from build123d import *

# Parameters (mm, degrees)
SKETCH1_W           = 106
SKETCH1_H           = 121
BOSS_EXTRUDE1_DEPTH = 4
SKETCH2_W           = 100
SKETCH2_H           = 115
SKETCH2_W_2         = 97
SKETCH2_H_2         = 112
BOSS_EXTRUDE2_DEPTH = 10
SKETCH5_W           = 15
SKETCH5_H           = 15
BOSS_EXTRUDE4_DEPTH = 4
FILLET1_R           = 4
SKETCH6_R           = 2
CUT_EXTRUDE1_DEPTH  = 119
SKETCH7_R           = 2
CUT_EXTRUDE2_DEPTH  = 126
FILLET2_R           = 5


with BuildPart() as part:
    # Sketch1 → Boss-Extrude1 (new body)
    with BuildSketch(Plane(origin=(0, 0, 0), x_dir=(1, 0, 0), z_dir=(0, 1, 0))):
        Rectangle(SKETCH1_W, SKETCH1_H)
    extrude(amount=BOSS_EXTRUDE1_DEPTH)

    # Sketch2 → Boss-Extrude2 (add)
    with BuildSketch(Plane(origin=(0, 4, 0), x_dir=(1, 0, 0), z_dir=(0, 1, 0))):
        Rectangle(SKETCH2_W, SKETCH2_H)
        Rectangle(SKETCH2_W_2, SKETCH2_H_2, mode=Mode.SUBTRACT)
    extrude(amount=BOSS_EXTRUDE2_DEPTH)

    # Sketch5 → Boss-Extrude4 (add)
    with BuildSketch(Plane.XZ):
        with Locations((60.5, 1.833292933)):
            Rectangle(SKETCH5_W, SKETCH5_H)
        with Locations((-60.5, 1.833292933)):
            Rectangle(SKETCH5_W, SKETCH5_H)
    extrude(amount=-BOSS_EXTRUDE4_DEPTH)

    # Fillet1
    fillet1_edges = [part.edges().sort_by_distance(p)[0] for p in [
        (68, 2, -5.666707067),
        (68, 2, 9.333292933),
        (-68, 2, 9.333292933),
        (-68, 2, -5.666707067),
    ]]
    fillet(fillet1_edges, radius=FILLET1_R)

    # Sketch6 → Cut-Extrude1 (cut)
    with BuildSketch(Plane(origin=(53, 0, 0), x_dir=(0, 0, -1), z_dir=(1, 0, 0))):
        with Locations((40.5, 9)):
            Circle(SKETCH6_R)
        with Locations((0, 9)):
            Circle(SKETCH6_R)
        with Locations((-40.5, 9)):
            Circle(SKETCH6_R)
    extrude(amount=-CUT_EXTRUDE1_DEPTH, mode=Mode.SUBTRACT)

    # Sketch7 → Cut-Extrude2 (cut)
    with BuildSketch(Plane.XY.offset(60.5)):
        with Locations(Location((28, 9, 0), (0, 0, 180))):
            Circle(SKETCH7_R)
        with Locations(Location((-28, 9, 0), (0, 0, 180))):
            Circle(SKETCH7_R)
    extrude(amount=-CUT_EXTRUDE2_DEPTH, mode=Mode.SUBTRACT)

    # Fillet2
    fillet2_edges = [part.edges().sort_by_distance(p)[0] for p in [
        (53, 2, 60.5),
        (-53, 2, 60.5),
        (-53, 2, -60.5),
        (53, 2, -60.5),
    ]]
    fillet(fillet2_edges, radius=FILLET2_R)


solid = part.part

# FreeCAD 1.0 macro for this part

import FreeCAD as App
import Part
import Sketcher
Q = App.Units.Quantity


def edges_at(feature, points):
    """Names of the edges that pass closest to the given points."""
    edges = feature.Shape.Edges
    near = lambda p: min(range(len(edges)), key=lambda i: edges[i].distToShape(Part.Vertex(*p))[0])
    return sorted({f"Edge{near(p) + 1}" for p in points})


def add_polygon(sketch, points):
    """Adds a closed chain of lines whose ends are joined by coincident constraints."""
    first, n = sketch.GeometryCount, len(points)
    for a, b in zip(points, points[1:] + points[:1]):
        sketch.addGeometry(Part.LineSegment(App.Vector(*a, 0), App.Vector(*b, 0)), False)
    for i in range(n):
        sketch.addConstraint(Sketcher.Constraint("Coincident", first + i, 2, first + (i + 1) % n, 1))

doc = App.newDocument("Part")
body = doc.addObject("PartDesign::Body", "Body")

# Sketch on XZ plane
sketch1 = doc.addObject("Sketcher::SketchObject", "Sketch")
body.addObject(sketch1)
sketch1.AttachmentSupport = (doc.XZ_Plane, [""])
sketch1.MapMode = "FlatFace"
add_polygon(sketch1, [(-53, -60), (-53, 60), (53, 60), (53, -60)])  # lines 0-3
sketch1.addConstraint([
    Sketcher.Constraint("Vertical", 0),
    Sketcher.Constraint("Horizontal", 1),
    Sketcher.Constraint("Vertical", 2),
    Sketcher.Constraint("Horizontal", 3),
    Sketcher.Constraint("Symmetric", 0, 2, 2, 2, -1, 1),
    Sketcher.Constraint("DistanceX", 1, 1, 1, 2, Q("106 mm")),
    Sketcher.Constraint("DistanceY", 0, 1, 0, 2, Q("121 mm")),
])
pad1 = doc.addObject("PartDesign::Pad", "Pad")
body.addObject(pad1)
pad1.Profile = sketch1
pad1.Length = 4
pad1.Reversed = True

# Sketch on XZ plane
sketch2 = doc.addObject("Sketcher::SketchObject", "Sketch001")
body.addObject(sketch2)
sketch2.AttachmentSupport = (doc.XZ_Plane, [""])
sketch2.MapMode = "FlatFace"
sketch2.AttachmentOffset = App.Placement(App.Vector(0, 0, -4), App.Rotation())
add_polygon(sketch2, [(-50, -58), (-50, 58), (50, 58), (50, -58)])  # lines 0-3
add_polygon(sketch2, [(48, 56), (-48, 56), (-48, -56), (48, -56)])  # lines 4-7
sketch2.addConstraint([
    Sketcher.Constraint("Vertical", 0),
    Sketcher.Constraint("Horizontal", 1),
    Sketcher.Constraint("Vertical", 2),
    Sketcher.Constraint("Horizontal", 3),
    Sketcher.Constraint("Horizontal", 4),
    Sketcher.Constraint("Vertical", 5),
    Sketcher.Constraint("Horizontal", 6),
    Sketcher.Constraint("Vertical", 7),
    Sketcher.Constraint("Symmetric", 0, 2, 2, 2, -1, 1),
    Sketcher.Constraint("Symmetric", 4, 2, 6, 2, -1, 1),
    Sketcher.Constraint("DistanceX", 1, 1, 1, 2, Q("100 mm")),
    Sketcher.Constraint("DistanceX", 4, 2, 4, 1, Q("97 mm")),
    Sketcher.Constraint("DistanceY", 0, 1, 0, 2, Q("115 mm")),
    Sketcher.Constraint("DistanceY", 5, 2, 5, 1, Q("112 mm")),
])
pad2 = doc.addObject("PartDesign::Pad", "Pad001")
body.addObject(pad2)
pad2.Profile = sketch2
pad2.Length = 10
pad2.Reversed = True

# Sketch on XZ plane
sketch3 = doc.addObject("Sketcher::SketchObject", "Sketch002")
body.addObject(sketch3)
sketch3.AttachmentSupport = (doc.XZ_Plane, [""])
sketch3.MapMode = "FlatFace"
add_polygon(sketch3, [(53, 9), (53, -6), (68, -6), (68, 9)])  # lines 0-3
add_polygon(sketch3, [(-68, 9), (-68, -6), (-53, -6), (-53, 9)])  # lines 4-7
sketch3.addConstraint([
    Sketcher.Constraint("Vertical", 0),
    Sketcher.Constraint("Horizontal", 1),
    Sketcher.Constraint("Vertical", 2),
    Sketcher.Constraint("Horizontal", 3),
    Sketcher.Constraint("Vertical", 4),
    Sketcher.Constraint("Horizontal", 5),
    Sketcher.Constraint("Vertical", 6),
    Sketcher.Constraint("Horizontal", 7),
    Sketcher.Constraint("Symmetric", 1, 2, 4, 2, -2),
    Sketcher.Constraint("Symmetric", 3, 2, 6, 2, -2),
    Sketcher.Constraint("Equal", 7, 0),
    Sketcher.Constraint("DistanceX", 1, 1, 1, 2, Q("15 mm")),
    Sketcher.Constraint("DistanceX", -1, 1, 0, 2, Q("53 mm")),
    Sketcher.Constraint("DistanceY", 0, 2, -1, 1, Q("5.666707 mm")),
])
pad3 = doc.addObject("PartDesign::Pad", "Pad002")
body.addObject(pad3)
pad3.Profile = sketch3
pad3.Length = 4
pad3.Reversed = True
doc.recompute()

fillet = doc.addObject("PartDesign::Fillet", "Fillet")
body.addObject(fillet)
fillet.Base = (pad3, edges_at(pad3, [
    (68, 2, -5.667),
    (68, 2, 9.333),
    (-68, 2, 9.333),
    (-68, 2, -5.667),
]))
fillet.Radius = 4

# Sketch on YZ plane
sketch4 = doc.addObject("Sketcher::SketchObject", "Sketch003")
body.addObject(sketch4)
sketch4.AttachmentSupport = (doc.YZ_Plane, [""])
sketch4.MapMode = "FlatFace"
sketch4.AttachmentOffset = App.Placement(App.Vector(0, 0, 53), App.Rotation())
sketch4.addGeometry([
    Part.Circle(App.Vector(9, -40.5, 0), App.Vector(0, 0, 1), 2),
    Part.Circle(App.Vector(9, 0, 0), App.Vector(0, 0, 1), 2),
    Part.Circle(App.Vector(9, 40.5, 0), App.Vector(0, 0, 1), 2),
], False)
sketch4.addConstraint([
    Sketcher.Constraint("Equal", 0, 1),
    Sketcher.Constraint("Equal", 1, 2),
    Sketcher.Constraint("Symmetric", 0, 3, 2, 3, -1),
    Sketcher.Constraint("PointOnObject", 1, 3, -1),
    Sketcher.Constraint("Vertical", 0, 3, 1, 3),
    Sketcher.Constraint("Diameter", 0, Q("4 mm")),
    Sketcher.Constraint("DistanceX", -1, 1, 0, 3, Q("9 mm")),
    Sketcher.Constraint("DistanceY", 0, 3, 2, 3, Q("81 mm")),
])
pocket1 = doc.addObject("PartDesign::Pocket", "Pocket")
body.addObject(pocket1)
pocket1.Profile = sketch4
pocket1.Length = 119

# Sketch on XY plane
sketch5 = doc.addObject("Sketcher::SketchObject", "Sketch004")
body.addObject(sketch5)
sketch5.AttachmentSupport = (doc.XY_Plane, [""])
sketch5.MapMode = "FlatFace"
sketch5.AttachmentOffset = App.Placement(App.Vector(0, 0, 60.5), App.Rotation())
sketch5.addGeometry([
    Part.Circle(App.Vector(28, 9, 0), App.Vector(0, 0, 1), 2),
    Part.Circle(App.Vector(-28, 9, 0), App.Vector(0, 0, 1), 2),
], False)
sketch5.addConstraint([
    Sketcher.Constraint("Equal", 0, 1),
    Sketcher.Constraint("Symmetric", 0, 3, 1, 3, -2),
    Sketcher.Constraint("Diameter", 0, Q("4 mm")),
    Sketcher.Constraint("DistanceX", -1, 1, 0, 3, Q("28 mm")),
    Sketcher.Constraint("DistanceY", -1, 1, 0, 3, Q("9 mm")),
])
pocket2 = doc.addObject("PartDesign::Pocket", "Pocket001")
body.addObject(pocket2)
pocket2.Profile = sketch5
pocket2.Length = 126
doc.recompute()

fillet2 = doc.addObject("PartDesign::Fillet", "Fillet001")
body.addObject(fillet2)
fillet2.Base = (pocket2, edges_at(pocket2, [
    (53, 2, 60.5),
    (-53, 2, 60.5),
    (-53, 2, -60.5),
    (53, 2, -60.5),
]))
fillet2.Radius = 5

doc.recompute()
